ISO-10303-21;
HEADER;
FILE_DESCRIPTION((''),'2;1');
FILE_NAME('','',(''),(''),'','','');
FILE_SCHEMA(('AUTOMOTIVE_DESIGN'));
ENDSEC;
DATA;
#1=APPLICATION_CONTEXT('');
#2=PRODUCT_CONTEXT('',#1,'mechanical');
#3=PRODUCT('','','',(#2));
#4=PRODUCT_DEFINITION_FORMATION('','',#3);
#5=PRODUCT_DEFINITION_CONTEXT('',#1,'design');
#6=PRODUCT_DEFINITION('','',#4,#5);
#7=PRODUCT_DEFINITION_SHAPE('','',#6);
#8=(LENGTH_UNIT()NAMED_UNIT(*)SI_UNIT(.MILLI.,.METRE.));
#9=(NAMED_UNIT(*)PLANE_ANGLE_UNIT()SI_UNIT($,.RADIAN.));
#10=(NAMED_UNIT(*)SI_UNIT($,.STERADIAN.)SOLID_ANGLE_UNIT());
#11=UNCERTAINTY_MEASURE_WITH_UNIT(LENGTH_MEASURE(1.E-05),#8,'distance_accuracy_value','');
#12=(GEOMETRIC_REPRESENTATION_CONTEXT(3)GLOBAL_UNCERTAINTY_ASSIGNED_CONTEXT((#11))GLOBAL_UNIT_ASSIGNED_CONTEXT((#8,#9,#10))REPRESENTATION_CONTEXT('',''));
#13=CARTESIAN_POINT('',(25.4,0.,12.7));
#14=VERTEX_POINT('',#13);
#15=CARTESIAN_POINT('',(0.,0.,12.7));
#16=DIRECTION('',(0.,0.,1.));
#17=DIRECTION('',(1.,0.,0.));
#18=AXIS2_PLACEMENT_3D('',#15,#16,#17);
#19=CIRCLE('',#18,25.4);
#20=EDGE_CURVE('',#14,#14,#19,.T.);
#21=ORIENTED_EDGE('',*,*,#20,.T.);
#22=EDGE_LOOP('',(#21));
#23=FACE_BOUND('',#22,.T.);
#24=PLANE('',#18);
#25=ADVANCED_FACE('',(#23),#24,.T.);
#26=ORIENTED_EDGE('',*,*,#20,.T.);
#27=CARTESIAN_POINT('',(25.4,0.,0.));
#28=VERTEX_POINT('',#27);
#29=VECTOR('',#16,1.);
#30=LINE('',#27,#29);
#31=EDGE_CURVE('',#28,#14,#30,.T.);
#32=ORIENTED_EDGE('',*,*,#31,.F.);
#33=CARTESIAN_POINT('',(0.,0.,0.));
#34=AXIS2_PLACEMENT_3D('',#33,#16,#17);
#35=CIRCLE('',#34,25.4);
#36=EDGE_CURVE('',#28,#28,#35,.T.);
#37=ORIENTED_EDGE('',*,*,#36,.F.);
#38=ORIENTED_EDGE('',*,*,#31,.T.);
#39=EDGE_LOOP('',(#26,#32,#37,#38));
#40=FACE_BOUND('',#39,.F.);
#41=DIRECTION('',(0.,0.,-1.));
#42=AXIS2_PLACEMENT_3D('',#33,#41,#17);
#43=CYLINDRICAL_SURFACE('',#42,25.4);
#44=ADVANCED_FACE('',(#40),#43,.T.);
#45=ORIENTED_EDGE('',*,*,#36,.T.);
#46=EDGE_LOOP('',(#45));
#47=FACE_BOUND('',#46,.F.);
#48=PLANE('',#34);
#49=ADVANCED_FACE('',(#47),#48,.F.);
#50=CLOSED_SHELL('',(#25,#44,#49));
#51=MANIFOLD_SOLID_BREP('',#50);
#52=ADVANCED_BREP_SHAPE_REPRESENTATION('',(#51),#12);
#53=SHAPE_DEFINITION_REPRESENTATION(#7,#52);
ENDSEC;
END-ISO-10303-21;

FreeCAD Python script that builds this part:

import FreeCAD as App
import Part
import Sketcher

V = App.Vector
Q = App.Units.Quantity

doc = App.newDocument("Part")
params = doc.addObject("Spreadsheet::Sheet", "Params")
for row, (alias, value) in enumerate([
    ("sketch1_diameter", "2 in"),
    ("pad1_length", "0.5 in"),
], start=1):
    params.set(f"A{row}", alias)
    params.set(f"B{row}", "=" + value)
    params.setAlias(f"B{row}", alias)

body = doc.addObject("PartDesign::Body", "Body")

# Sketch on XY plane
sketch1 = body.newObject("Sketcher::SketchObject", "Sketch")
sketch1.AttachmentSupport = (doc.getObject("XY_Plane"), [""])
sketch1.MapMode = "FlatFace"
sketch1.addGeometry(Part.Circle(V(0, 0, 0), V(0, 0, 1), 25), False)
sketch1.addConstraint([
    Sketcher.Constraint("Coincident", 0, 3, -1, 1),
    Sketcher.Constraint("Diameter", 0, Q("2 in")),
])
sketch1.setExpression("Constraints[1]", "Params.sketch1_diameter")
pad1 = body.newObject("PartDesign::Pad", "Pad")
pad1.Profile = sketch1
pad1.setExpression("Length", "Params.pad1_length")

doc.recompute()
